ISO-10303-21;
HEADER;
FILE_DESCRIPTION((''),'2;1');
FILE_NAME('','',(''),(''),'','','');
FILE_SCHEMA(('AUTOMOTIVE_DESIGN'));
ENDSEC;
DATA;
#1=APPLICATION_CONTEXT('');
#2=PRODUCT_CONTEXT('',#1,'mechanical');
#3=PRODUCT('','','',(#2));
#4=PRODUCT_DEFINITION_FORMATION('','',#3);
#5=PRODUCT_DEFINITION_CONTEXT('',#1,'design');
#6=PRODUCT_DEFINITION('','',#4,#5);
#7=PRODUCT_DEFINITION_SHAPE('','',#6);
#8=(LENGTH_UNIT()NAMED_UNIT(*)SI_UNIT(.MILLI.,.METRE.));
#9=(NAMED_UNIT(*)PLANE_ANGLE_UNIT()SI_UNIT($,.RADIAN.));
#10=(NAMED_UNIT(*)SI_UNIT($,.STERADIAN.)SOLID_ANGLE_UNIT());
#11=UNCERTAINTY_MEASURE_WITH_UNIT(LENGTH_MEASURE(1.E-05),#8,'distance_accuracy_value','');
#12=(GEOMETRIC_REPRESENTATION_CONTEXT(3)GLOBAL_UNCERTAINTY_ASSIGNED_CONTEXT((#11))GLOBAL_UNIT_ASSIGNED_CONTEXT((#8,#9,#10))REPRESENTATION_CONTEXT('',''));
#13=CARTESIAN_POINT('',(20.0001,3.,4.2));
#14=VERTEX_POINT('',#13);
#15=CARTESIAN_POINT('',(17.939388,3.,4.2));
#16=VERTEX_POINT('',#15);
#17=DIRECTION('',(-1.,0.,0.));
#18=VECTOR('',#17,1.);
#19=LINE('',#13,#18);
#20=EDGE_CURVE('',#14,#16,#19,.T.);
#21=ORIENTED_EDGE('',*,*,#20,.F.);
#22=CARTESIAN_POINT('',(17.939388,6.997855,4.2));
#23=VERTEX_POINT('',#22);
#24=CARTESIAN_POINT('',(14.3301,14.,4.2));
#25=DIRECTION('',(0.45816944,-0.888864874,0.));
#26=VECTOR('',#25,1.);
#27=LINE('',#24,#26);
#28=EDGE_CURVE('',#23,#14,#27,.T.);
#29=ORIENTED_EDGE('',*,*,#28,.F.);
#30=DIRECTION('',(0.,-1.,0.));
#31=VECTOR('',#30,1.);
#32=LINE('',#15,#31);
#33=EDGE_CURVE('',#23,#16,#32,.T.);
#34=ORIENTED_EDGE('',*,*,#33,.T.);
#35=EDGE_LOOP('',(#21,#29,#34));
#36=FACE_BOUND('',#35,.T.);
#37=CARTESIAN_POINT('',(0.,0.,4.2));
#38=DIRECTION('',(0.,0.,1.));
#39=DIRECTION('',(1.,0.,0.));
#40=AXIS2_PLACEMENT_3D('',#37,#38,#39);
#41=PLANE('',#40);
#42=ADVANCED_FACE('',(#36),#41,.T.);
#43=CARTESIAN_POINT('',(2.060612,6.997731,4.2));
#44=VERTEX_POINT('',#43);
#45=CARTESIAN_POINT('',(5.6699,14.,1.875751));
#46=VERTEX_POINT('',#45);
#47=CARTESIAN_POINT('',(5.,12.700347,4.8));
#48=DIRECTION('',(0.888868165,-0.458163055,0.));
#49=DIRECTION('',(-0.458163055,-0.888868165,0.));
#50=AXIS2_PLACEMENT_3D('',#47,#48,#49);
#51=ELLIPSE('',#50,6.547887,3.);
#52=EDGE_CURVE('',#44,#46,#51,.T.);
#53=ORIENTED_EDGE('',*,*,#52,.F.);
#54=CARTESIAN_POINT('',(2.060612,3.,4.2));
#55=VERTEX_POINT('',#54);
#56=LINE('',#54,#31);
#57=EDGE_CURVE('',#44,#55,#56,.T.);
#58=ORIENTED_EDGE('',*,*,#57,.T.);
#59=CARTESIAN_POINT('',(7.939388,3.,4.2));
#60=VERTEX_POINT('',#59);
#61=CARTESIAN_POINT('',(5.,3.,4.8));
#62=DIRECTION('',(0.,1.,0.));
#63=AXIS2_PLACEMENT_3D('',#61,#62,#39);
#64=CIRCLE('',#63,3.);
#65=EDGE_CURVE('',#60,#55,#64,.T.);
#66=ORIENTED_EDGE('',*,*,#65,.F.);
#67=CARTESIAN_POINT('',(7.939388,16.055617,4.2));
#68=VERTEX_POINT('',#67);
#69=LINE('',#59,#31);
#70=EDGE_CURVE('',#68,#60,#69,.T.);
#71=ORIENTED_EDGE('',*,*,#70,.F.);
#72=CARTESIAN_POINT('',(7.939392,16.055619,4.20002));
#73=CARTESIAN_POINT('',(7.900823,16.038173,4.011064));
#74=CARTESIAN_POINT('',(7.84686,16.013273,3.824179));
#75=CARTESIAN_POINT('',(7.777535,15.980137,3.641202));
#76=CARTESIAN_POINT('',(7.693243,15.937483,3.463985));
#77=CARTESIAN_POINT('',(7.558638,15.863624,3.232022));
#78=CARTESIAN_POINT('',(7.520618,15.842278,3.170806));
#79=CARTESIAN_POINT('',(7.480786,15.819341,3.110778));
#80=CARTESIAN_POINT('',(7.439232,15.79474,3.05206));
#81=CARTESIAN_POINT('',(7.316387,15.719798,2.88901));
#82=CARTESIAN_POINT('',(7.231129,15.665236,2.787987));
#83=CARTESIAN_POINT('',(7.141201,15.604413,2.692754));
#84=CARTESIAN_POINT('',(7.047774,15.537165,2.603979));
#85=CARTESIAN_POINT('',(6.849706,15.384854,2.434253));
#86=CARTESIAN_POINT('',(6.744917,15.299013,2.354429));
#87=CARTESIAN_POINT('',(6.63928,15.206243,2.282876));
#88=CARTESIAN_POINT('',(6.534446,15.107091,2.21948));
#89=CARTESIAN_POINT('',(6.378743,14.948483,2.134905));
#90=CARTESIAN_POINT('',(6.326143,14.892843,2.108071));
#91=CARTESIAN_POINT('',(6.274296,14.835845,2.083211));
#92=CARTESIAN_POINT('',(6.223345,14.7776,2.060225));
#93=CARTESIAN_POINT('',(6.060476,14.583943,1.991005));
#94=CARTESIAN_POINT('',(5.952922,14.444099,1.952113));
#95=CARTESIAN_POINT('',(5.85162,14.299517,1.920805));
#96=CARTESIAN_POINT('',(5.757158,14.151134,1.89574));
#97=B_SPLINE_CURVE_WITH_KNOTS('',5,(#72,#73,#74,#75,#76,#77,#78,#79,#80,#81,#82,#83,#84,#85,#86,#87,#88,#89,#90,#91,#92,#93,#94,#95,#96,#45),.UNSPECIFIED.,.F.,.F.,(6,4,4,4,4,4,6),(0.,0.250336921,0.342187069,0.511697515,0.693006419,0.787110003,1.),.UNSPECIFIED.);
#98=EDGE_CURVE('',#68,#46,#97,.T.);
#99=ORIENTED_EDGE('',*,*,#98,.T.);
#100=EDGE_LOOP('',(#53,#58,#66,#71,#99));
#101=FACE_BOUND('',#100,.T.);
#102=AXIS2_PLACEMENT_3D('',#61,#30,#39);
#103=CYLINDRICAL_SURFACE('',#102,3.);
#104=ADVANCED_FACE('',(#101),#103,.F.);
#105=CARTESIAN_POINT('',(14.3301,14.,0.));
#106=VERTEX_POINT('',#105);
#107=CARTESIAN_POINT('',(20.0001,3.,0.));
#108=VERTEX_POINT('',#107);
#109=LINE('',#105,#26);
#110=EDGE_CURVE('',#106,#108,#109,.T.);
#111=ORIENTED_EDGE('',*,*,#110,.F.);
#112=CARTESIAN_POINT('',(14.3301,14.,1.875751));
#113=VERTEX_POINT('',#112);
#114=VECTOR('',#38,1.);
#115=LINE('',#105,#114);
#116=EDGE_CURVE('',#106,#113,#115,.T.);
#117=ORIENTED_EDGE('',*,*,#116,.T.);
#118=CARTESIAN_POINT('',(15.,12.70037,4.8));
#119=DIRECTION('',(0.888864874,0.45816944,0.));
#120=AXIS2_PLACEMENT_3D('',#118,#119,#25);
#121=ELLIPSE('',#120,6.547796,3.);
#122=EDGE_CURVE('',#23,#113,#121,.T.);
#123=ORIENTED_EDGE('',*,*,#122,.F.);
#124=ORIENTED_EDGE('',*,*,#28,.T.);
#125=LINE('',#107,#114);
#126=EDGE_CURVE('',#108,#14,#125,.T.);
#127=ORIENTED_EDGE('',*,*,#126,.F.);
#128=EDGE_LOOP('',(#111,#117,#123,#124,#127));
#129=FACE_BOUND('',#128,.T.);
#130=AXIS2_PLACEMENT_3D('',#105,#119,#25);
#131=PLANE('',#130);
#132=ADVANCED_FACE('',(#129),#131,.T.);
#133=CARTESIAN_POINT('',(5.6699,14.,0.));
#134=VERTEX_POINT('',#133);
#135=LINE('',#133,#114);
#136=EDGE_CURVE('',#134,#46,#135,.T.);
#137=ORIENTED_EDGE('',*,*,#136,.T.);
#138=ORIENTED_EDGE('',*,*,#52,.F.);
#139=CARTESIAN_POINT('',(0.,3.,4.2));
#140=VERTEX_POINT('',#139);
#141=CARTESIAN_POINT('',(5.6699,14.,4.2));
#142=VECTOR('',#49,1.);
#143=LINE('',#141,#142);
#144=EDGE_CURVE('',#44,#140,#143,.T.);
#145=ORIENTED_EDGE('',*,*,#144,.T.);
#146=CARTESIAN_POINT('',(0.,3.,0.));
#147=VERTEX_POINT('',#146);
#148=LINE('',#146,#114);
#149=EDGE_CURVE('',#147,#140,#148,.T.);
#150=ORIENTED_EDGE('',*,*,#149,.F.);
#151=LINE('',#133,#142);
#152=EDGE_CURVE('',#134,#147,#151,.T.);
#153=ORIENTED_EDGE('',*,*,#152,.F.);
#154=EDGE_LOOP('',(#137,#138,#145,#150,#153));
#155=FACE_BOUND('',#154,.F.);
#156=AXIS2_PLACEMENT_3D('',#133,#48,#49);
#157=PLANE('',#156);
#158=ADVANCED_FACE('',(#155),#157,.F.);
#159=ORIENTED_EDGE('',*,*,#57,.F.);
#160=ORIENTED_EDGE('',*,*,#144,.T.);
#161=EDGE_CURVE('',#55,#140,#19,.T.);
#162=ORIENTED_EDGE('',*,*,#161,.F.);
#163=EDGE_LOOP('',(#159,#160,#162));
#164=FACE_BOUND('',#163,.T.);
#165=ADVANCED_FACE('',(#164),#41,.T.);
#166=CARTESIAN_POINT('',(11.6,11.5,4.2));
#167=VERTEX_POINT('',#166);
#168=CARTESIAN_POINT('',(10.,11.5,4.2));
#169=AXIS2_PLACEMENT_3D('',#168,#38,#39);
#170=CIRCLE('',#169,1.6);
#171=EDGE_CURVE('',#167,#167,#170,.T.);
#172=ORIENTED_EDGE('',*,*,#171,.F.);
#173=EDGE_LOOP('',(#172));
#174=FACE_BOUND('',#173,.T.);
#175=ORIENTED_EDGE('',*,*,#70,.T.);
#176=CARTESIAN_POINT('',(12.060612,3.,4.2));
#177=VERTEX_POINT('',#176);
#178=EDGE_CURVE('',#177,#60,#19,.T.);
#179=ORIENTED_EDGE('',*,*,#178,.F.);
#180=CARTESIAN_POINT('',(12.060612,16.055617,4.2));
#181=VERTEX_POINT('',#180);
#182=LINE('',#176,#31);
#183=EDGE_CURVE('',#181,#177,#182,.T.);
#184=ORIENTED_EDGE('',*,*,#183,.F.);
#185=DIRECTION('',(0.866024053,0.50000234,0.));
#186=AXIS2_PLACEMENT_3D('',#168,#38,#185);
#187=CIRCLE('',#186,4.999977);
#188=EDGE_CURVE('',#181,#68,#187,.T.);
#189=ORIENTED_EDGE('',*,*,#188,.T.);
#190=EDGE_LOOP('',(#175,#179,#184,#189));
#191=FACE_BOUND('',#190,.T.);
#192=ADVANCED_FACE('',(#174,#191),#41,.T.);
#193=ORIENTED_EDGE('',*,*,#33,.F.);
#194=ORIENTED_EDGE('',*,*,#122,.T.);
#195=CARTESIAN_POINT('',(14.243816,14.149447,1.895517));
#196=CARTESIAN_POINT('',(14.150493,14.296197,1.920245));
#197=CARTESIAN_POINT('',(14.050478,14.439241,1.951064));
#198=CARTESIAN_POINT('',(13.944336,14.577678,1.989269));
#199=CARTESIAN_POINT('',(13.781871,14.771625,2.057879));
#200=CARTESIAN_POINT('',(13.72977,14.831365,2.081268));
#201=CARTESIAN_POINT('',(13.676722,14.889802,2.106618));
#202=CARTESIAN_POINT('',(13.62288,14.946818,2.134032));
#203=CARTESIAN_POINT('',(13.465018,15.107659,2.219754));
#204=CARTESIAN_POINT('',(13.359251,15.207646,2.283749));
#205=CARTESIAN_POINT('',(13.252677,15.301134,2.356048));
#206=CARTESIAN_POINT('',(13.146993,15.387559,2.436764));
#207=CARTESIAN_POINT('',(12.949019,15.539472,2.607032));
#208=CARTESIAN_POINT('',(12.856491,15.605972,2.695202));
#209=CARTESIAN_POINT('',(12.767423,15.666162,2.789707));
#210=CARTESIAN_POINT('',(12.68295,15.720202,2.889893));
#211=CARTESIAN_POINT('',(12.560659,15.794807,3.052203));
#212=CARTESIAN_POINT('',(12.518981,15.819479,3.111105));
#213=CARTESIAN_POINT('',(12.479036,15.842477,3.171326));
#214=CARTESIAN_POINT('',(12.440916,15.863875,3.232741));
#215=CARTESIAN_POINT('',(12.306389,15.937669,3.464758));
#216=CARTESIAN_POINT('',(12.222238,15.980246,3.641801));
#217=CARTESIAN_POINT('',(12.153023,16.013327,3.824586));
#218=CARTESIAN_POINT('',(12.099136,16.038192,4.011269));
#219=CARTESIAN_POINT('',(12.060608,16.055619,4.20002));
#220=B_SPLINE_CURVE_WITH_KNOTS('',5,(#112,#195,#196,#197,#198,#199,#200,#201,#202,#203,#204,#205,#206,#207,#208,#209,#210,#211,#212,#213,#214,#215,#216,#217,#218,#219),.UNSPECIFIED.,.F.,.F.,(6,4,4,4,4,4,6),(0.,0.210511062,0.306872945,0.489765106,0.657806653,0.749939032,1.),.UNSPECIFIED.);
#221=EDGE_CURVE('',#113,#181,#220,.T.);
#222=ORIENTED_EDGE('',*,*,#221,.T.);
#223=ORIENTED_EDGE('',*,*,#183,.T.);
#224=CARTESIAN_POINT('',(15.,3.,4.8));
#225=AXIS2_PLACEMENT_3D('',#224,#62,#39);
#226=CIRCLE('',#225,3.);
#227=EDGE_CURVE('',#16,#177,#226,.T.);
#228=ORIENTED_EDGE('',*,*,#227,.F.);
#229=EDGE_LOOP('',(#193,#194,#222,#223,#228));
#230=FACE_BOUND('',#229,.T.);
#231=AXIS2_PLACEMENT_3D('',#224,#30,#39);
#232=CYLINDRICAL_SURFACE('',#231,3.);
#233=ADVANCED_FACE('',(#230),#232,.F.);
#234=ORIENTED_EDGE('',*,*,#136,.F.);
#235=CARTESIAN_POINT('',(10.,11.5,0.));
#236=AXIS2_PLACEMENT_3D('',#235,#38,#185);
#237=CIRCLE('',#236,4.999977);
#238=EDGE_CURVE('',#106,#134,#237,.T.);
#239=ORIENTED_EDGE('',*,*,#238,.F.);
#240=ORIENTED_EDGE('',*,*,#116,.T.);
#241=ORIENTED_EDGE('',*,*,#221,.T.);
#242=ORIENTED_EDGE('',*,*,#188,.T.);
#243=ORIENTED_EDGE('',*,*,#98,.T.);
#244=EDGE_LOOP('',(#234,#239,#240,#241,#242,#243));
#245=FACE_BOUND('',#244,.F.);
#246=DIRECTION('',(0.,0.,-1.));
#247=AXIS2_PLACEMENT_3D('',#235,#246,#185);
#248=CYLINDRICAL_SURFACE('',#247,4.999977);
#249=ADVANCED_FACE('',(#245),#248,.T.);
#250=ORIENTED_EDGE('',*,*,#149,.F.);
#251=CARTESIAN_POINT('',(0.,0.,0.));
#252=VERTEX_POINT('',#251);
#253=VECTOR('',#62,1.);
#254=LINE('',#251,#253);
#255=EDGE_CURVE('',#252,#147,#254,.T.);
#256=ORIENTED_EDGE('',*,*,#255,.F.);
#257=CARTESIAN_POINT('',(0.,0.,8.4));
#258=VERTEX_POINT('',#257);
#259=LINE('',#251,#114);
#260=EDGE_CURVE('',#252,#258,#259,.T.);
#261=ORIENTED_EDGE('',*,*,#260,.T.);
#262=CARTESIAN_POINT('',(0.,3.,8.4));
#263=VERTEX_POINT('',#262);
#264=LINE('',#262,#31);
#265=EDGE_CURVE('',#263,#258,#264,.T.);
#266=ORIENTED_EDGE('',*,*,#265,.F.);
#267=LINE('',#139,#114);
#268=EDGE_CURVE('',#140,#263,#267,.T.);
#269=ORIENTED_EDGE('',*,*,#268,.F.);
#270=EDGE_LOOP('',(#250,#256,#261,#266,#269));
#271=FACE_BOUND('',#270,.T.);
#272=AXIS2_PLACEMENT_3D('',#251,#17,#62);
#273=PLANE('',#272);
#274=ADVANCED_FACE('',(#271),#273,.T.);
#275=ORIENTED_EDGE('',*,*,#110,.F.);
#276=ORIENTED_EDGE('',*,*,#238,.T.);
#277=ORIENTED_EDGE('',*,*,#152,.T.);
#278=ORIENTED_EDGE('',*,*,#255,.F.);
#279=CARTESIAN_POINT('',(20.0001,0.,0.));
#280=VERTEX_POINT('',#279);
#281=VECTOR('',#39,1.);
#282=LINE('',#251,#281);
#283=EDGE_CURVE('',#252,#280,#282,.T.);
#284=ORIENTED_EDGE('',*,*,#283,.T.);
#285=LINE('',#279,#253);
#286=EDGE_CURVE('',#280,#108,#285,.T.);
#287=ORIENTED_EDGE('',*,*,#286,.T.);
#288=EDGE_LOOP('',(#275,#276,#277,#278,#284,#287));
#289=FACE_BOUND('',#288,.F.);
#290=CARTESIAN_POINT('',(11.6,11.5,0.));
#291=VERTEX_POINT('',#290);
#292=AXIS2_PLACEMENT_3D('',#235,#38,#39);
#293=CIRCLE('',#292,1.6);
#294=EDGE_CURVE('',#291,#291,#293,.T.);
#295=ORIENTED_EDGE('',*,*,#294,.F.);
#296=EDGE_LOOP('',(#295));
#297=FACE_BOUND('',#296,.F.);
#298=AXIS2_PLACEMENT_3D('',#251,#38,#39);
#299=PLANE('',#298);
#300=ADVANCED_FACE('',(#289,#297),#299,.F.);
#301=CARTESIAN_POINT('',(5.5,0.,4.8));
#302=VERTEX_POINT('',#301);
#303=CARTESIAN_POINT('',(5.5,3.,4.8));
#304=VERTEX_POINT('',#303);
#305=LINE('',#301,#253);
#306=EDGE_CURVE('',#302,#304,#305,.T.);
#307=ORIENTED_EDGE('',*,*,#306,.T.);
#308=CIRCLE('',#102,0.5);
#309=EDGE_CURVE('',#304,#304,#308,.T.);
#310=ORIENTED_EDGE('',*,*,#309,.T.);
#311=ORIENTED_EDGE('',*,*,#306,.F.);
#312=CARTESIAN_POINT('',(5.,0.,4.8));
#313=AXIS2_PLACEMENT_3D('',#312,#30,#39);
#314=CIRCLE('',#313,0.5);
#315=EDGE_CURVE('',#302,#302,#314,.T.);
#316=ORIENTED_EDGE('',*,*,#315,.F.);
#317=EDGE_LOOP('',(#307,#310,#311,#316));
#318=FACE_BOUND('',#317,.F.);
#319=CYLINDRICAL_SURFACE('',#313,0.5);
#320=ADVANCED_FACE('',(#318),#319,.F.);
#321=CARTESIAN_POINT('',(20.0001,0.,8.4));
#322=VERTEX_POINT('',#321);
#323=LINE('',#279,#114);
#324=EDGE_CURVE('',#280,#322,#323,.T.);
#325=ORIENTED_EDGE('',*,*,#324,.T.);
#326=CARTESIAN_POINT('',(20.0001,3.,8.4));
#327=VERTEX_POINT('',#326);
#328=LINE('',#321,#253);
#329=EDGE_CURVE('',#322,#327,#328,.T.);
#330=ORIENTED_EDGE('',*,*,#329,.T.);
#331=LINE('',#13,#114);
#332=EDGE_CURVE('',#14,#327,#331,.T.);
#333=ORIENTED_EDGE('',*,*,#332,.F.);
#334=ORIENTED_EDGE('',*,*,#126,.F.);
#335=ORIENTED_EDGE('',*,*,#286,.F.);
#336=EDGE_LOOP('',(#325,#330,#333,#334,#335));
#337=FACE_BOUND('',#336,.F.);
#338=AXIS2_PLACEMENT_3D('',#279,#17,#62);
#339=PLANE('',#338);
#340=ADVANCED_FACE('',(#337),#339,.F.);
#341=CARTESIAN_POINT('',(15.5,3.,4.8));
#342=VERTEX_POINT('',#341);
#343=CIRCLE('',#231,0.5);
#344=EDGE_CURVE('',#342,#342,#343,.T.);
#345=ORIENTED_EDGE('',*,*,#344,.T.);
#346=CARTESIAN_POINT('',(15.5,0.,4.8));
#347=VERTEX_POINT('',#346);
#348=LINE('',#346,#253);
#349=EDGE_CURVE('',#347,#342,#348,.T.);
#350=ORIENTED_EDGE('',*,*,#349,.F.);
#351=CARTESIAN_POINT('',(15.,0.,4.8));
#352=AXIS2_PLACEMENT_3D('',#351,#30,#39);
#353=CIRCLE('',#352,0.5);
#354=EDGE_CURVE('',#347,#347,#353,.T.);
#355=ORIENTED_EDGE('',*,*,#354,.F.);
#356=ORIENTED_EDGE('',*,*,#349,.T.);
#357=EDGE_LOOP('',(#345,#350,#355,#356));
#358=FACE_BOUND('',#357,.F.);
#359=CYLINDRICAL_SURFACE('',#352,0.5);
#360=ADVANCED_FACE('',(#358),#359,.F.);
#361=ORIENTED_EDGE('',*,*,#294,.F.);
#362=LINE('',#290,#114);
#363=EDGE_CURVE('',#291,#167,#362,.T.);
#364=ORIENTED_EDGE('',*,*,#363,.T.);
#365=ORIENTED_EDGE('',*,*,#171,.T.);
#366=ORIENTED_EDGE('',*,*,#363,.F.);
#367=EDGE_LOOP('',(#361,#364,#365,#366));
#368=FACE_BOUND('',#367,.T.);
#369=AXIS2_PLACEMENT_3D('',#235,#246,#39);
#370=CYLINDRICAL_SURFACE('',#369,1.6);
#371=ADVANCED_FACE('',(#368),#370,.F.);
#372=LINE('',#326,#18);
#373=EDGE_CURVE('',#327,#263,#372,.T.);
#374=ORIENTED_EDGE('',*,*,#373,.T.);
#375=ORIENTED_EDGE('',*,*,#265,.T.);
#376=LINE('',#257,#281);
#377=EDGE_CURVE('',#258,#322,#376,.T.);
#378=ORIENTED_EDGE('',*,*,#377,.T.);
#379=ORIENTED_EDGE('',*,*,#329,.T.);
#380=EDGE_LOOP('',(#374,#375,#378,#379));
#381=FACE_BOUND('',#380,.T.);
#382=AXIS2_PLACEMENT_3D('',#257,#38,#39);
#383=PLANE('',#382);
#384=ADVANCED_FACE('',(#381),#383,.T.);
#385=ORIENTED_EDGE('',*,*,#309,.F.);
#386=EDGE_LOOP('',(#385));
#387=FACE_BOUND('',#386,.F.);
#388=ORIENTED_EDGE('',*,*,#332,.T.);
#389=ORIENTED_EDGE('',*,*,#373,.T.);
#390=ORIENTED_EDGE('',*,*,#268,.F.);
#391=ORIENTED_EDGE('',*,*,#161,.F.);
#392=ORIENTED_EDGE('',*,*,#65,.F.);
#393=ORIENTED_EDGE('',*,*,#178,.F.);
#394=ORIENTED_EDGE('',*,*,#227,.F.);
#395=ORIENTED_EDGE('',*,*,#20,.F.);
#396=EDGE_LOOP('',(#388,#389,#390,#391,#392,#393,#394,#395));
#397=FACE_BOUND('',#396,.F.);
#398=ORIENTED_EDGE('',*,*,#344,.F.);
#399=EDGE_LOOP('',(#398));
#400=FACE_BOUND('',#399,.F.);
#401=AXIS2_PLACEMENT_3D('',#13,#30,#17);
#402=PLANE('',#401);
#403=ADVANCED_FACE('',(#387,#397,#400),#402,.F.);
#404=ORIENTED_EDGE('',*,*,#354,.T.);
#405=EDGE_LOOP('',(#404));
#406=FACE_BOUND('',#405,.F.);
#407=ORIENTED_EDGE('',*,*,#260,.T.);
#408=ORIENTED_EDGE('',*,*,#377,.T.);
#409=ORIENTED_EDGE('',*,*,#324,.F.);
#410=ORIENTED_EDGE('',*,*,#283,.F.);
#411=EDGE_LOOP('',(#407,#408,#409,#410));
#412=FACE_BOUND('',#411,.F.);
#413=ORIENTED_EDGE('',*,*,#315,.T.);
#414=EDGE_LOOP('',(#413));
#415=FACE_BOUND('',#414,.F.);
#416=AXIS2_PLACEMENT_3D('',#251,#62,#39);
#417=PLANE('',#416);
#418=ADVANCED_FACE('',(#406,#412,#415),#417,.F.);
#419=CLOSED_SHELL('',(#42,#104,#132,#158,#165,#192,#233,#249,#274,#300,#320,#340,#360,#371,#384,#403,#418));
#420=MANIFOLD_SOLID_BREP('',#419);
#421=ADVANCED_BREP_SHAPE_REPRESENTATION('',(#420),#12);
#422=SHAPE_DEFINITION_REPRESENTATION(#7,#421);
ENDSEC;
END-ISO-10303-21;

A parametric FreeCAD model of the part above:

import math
import FreeCAD as App
import Part
import Sketcher
from FreeCAD import Vector

doc = App.newDocument("Part")
body = doc.addObject("PartDesign::Body", "Body")

# Sketch on XY plane
sketch1 = body.newObject("Sketcher::SketchObject", "Sketch")
sketch1.AttachmentSupport = (doc.getObject("XY_Plane"), [""])
sketch1.MapMode = "FlatFace"
sketch1.addGeometry([
    Part.LineSegment(Vector(0, 3, 0), Vector(0, 0, 0)),  # 0
    Part.LineSegment(Vector(0, 0, 0), Vector(20.0001, 0, 0)),  # 1
    Part.LineSegment(Vector(20.0001, 0, 0), Vector(20.0001, 3, 0)),  # 2
    Part.LineSegment(Vector(20.0001, 3, 0), Vector(14.3301, 14, 0)),  # 3
    Part.ArcOfCircle(Part.Circle(Vector(10, 11.5, 0), Vector(0, 0, 1), 4.999977), math.radians(30.000155), math.radians(149.999845)),  # 4
    Part.LineSegment(Vector(5.6699, 14, 0), Vector(0, 3, 0)),  # 5
    Part.Circle(Vector(10, 11.5, 0), Vector(0, 0, 1), 1.6),  # 6
], False)
sketch1.addConstraint([
    Sketcher.Constraint("Coincident", 0, 2, 1, 1),
    Sketcher.Constraint("Coincident", 1, 2, 2, 1),
    Sketcher.Constraint("Coincident", 2, 2, 3, 1),
    Sketcher.Constraint("Coincident", 3, 2, 4, 1),
    Sketcher.Constraint("Coincident", 4, 2, 5, 1),
    Sketcher.Constraint("Coincident", 5, 2, 0, 1),
    Sketcher.Constraint("Vertical", 0),
    Sketcher.Constraint("Horizontal", 1),
    Sketcher.Constraint("Vertical", 2),
    Sketcher.Constraint("Coincident", 0, 2, -1, 1),
    Sketcher.Constraint("Coincident", 6, 3, 4, 3),
    Sketcher.Constraint("Horizontal", 3, 2, 4, 2),
    Sketcher.Constraint("Horizontal", 2, 2, 5, 2),
    Sketcher.Constraint("Equal", 3, 5),
    Sketcher.Constraint("Radius", 4, 5.0),
    Sketcher.Constraint("DistanceY", 0, 2, 0, 1, 3.0),
    Sketcher.Constraint("DistanceX", -1, 1, 4, 3, 10.0),
    Sketcher.Constraint("DistanceY", -1, 1, 3, 2, 14.0),
    Sketcher.Constraint("Diameter", 6, 3.2),
    Sketcher.Constraint("DistanceY", -1, 1, 4, 3, 11.5),
])
pad1 = body.newObject("PartDesign::Pad", "Pad")
pad1.Profile = sketch1
pad1.Length = 4.2

# Sketch on XY plane
sketch2 = body.newObject("Sketcher::SketchObject", "Sketch001")
sketch2.AttachmentSupport = (doc.getObject("XY_Plane"), [""])
sketch2.MapMode = "FlatFace"
sketch2.AttachmentOffset = App.Placement(Vector(0, 0, 4.2), App.Rotation())
sketch2.addGeometry([
    Part.LineSegment(Vector(20.0001, 3, 0), Vector(0, 3, 0)),
    Part.LineSegment(Vector(0, 3, 0), Vector(0, 0, 0)),
    Part.LineSegment(Vector(0, 0, 0), Vector(20.0001, 0, 0)),
    Part.LineSegment(Vector(20.0001, 0, 0), Vector(20.0001, 3, 0)),
], False)
sketch2.addConstraint([
    Sketcher.Constraint("Coincident", 0, 2, 1, 1),
    Sketcher.Constraint("Coincident", 1, 2, 2, 1),
    Sketcher.Constraint("Coincident", 2, 2, 3, 1),
    Sketcher.Constraint("Coincident", 3, 2, 0, 1),
    Sketcher.Constraint("Horizontal", 0),
    Sketcher.Constraint("Vertical", 1),
    Sketcher.Constraint("Horizontal", 2),
    Sketcher.Constraint("Vertical", 3),
    Sketcher.Constraint("Coincident", 1, 2, -1, 1),
    Sketcher.Constraint("DistanceX", 0, 2, 0, 1, 20.0),
    Sketcher.Constraint("DistanceY", 1, 2, 1, 1, 3.0),
])
pad2 = body.newObject("PartDesign::Pad", "Pad001")
pad2.Profile = sketch2
pad2.Length = 4.2

# Sketch on XZ plane
sketch3 = body.newObject("Sketcher::SketchObject", "Sketch002")
sketch3.AttachmentSupport = (doc.getObject("XZ_Plane"), [""])
sketch3.MapMode = "FlatFace"
sketch3.addGeometry([
    Part.Circle(Vector(5, 4.8, 0), Vector(0, 0, 1), 0.5),
    Part.Circle(Vector(15, 4.8, 0), Vector(0, 0, 1), 0.5),
], False)
sketch3.addConstraint([
    Sketcher.Constraint("Equal", 0, 1),
    Sketcher.Constraint("Horizontal", 0, 3, 1, 3),
    Sketcher.Constraint("Diameter", 0, 1.0),
    Sketcher.Constraint("DistanceY", -1, 1, 0, 3, 4.8),
    Sketcher.Constraint("DistanceX", -1, 1, 0, 3, 5.0),
    Sketcher.Constraint("DistanceX", -1, 1, 1, 3, 15.0),
])
pocket1 = body.newObject("PartDesign::Pocket", "Pocket")
pocket1.Profile = sketch3
pocket1.Length = 5.5

# Sketch on XZ plane
sketch4 = body.newObject("Sketcher::SketchObject", "Sketch003")
sketch4.AttachmentSupport = (doc.getObject("XZ_Plane"), [""])
sketch4.MapMode = "FlatFace"
sketch4.AttachmentOffset = App.Placement(Vector(0, 0, -3), App.Rotation())
sketch4.addGeometry([
    Part.Circle(Vector(5, 4.8, 0), Vector(0, 0, 1), 3),
    Part.Circle(Vector(5, 4.8, 0), Vector(0, 0, 1), 0.5),
    Part.Circle(Vector(15, 4.8, 0), Vector(0, 0, 1), 3),
    Part.Circle(Vector(15, 4.8, 0), Vector(0, 0, 1), 0.5),
], False)
sketch4.addConstraint([
    Sketcher.Constraint("Coincident", 1, 3, 0, 3),
    Sketcher.Constraint("Coincident", 3, 3, 2, 3),
    Sketcher.Constraint("Equal", 0, 2),
    Sketcher.Constraint("Equal", 1, 3),
    Sketcher.Constraint("Horizontal", 1, 3, 2, 3),
    Sketcher.Constraint("Diameter", 0, 6.0),
    Sketcher.Constraint("Diameter", 1, 1.0),
    Sketcher.Constraint("DistanceY", -1, 1, 0, 3, 4.8),
    Sketcher.Constraint("DistanceX", -1, 1, 0, 3, 5.0),
    Sketcher.Constraint("DistanceX", -1, 1, 2, 3, 15.0),
])
pocket2 = body.newObject("PartDesign::Pocket", "Pocket001")
pocket2.Profile = sketch4
pocket2.Length = 13.0556

doc.recompute()
